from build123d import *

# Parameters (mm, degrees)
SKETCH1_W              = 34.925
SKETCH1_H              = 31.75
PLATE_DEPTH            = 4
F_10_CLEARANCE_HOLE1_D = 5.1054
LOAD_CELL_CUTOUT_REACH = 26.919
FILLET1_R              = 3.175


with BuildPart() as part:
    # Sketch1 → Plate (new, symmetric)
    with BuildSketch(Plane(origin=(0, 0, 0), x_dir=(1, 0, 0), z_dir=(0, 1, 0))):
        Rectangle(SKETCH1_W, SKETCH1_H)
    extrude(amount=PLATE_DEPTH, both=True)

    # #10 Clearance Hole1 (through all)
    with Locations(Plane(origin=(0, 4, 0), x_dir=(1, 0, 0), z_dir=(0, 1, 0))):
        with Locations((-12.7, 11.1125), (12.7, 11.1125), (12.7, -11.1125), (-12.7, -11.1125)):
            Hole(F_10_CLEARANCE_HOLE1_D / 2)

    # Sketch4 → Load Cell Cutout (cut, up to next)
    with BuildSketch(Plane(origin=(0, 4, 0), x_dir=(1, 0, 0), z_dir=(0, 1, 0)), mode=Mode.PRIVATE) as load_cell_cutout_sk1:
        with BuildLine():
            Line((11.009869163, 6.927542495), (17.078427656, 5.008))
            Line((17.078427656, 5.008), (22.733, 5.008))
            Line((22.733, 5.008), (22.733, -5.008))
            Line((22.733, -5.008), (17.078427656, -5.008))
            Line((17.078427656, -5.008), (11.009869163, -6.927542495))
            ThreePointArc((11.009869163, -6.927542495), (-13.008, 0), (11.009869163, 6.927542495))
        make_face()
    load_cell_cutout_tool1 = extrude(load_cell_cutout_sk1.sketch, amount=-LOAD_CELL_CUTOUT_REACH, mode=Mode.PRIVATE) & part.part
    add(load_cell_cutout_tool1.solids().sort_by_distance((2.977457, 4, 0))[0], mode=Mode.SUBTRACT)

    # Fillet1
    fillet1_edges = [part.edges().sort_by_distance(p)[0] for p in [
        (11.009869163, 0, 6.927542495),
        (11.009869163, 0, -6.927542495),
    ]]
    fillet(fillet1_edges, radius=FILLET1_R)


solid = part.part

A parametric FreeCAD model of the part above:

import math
import FreeCAD as App
import Part
import Sketcher
Q = App.Units.Quantity


def edges_at(feature, points):
    """Names of the edges that pass closest to the given points."""
    edges = feature.Shape.Edges
    near = lambda p: min(range(len(edges)), key=lambda i: edges[i].distToShape(Part.Vertex(*p))[0])
    return sorted({f"Edge{near(p) + 1}" for p in points})

doc = App.newDocument("Part")
body = doc.addObject("PartDesign::Body", "Body")

sketch1 = body.newObject("Sketcher::SketchObject", "Sketch")
sketch1.AttachmentSupport = (doc.getObject("XZ_Plane"), [""])
sketch1.MapMode = "FlatFace"
sketch1.addGeometry([
    Part.LineSegment(App.Vector(-17.4625, -15.875, 0), App.Vector(-17.4625, 15.875, 0)),
    Part.LineSegment(App.Vector(-17.4625, 15.875, 0), App.Vector(17.4625, 15.875, 0)),
    Part.LineSegment(App.Vector(17.4625, 15.875, 0), App.Vector(17.4625, -15.875, 0)),
    Part.LineSegment(App.Vector(17.4625, -15.875, 0), App.Vector(-17.4625, -15.875, 0)),
], False)
sketch1.addConstraint([
    Sketcher.Constraint("Coincident", 0, 2, 1, 1),
    Sketcher.Constraint("Coincident", 1, 2, 2, 1),
    Sketcher.Constraint("Coincident", 2, 2, 3, 1),
    Sketcher.Constraint("Coincident", 3, 2, 0, 1),
    Sketcher.Constraint("Vertical", 0),
    Sketcher.Constraint("Horizontal", 1),
    Sketcher.Constraint("Vertical", 2),
    Sketcher.Constraint("Horizontal", 3),
    Sketcher.Constraint("Symmetric", 0, 2, 2, 2, -1, 1),
    Sketcher.Constraint("DistanceY", 0, 1, 0, 2, Q("1.25 in")),
    Sketcher.Constraint("DistanceX", 1, 1, 1, 2, Q("1.375 in")),
])
pad1 = body.newObject("PartDesign::Pad", "Pad")
pad1.Profile = sketch1
pad1.Length = 8
pad1.Midplane = True

sketch2 = body.newObject("Sketcher::SketchObject", "Sketch001")
sketch2.AttachmentSupport = (doc.getObject("XZ_Plane"), [""])
sketch2.MapMode = "FlatFace"
sketch2.AttachmentOffset = App.Placement(App.Vector(0, 0, -4), App.Rotation())
sketch2.addGeometry([
    Part.Circle(App.Vector(-12.7, -11.1125, 0), App.Vector(0, 0, 1), 2.5527),
    Part.Circle(App.Vector(12.7, -11.1125, 0), App.Vector(0, 0, 1), 2.5527),
    Part.Circle(App.Vector(12.7, 11.1125, 0), App.Vector(0, 0, 1), 2.5527),
    Part.Circle(App.Vector(-12.7, 11.1125, 0), App.Vector(0, 0, 1), 2.5527),
], False)
sketch2.addConstraint([
    Sketcher.Constraint("Equal", 0, 1),
    Sketcher.Constraint("Equal", 1, 2),
    Sketcher.Constraint("Equal", 2, 3),
    Sketcher.Constraint("Symmetric", 0, 3, 2, 3, -1, 1),
    Sketcher.Constraint("Symmetric", 1, 3, 3, 3, -1, 1),
    Sketcher.Constraint("Symmetric", 0, 3, 1, 3, -2),
    Sketcher.Constraint("Diameter", 0, Q("0.201 in")),
    Sketcher.Constraint("DistanceX", 0, 3, 1, 3, Q("1 in")),
    Sketcher.Constraint("DistanceY", 0, 3, -1, 1, Q("0.4375 in")),
])
doc.recompute()
hole = body.newObject("PartDesign::Hole", "Hole")
hole.Profile = sketch2
hole.ThreadType = "None"
hole.Diameter = Q("0.201 in")
hole.DepthType = "ThroughAll"
hole.Reversed = True

sketch3 = body.newObject("Sketcher::SketchObject", "Sketch002")
sketch3.AttachmentSupport = (doc.getObject("XZ_Plane"), [""])
sketch3.MapMode = "FlatFace"
sketch3.AttachmentOffset = App.Placement(App.Vector(0, 0, -4), App.Rotation())
sketch3.addGeometry([
    Part.LineSegment(App.Vector(17.078428, -5.008, 0), App.Vector(11.009869, -6.927542, 0)),
    Part.ArcOfCircle(Part.Circle(App.Vector(0, 0, 0), App.Vector(0, 0, 1), 13.008), math.radians(32.178598), math.radians(327.821402)),
    Part.LineSegment(App.Vector(11.009869, 6.927542, 0), App.Vector(17.078428, 5.008, 0)),
    Part.LineSegment(App.Vector(17.078428, 5.008, 0), App.Vector(22.733, 5.008, 0)),
    Part.LineSegment(App.Vector(22.733, 5.008, 0), App.Vector(22.733, -5.008, 0)),
    Part.LineSegment(App.Vector(22.733, -5.008, 0), App.Vector(17.078428, -5.008, 0)),
], False)
sketch3.addConstraint([
    Sketcher.Constraint("Coincident", 0, 2, 1, 2),
    Sketcher.Constraint("Coincident", 1, 1, 2, 1),
    Sketcher.Constraint("Coincident", 2, 2, 3, 1),
    Sketcher.Constraint("Coincident", 3, 2, 4, 1),
    Sketcher.Constraint("Coincident", 4, 2, 5, 1),
    Sketcher.Constraint("Coincident", 5, 2, 0, 1),
    Sketcher.Constraint("Horizontal", 3),
    Sketcher.Constraint("Vertical", 4),
    Sketcher.Constraint("Horizontal", 5),
    Sketcher.Constraint("Coincident", 1, 3, -1, 1),
    Sketcher.Constraint("Symmetric", 2, 2, 5, 2, -1),
    Sketcher.Constraint("Vertical", 0, 2, 1, 1),
    Sketcher.Constraint("Radius", 1, 13.008),
    Sketcher.Constraint("DistanceX", -1, 1, 3, 2, Q("0.895 in")),
    Sketcher.Constraint("DistanceY", 4, 2, 4, 1, 10.016),
    Sketcher.Constraint("DistanceX", 3, 1, 3, 2, 5.654572),
    Sketcher.Constraint("DistanceX", -1, 1, 0, 2, 11.009869),
])
pocket1 = body.newObject("PartDesign::Pocket", "Pocket")
pocket1.Profile = sketch3
pocket1.Type = "UpToFirst"
pocket1.Reversed = True
doc.recompute()

fillet = body.newObject("PartDesign::Fillet", "Fillet")
fillet.Base = (pocket1, edges_at(pocket1, [(11.01, 0, 6.928), (11.01, 0, -6.928)]))
fillet.Radius = Q("0.125 in")

doc.recompute()
